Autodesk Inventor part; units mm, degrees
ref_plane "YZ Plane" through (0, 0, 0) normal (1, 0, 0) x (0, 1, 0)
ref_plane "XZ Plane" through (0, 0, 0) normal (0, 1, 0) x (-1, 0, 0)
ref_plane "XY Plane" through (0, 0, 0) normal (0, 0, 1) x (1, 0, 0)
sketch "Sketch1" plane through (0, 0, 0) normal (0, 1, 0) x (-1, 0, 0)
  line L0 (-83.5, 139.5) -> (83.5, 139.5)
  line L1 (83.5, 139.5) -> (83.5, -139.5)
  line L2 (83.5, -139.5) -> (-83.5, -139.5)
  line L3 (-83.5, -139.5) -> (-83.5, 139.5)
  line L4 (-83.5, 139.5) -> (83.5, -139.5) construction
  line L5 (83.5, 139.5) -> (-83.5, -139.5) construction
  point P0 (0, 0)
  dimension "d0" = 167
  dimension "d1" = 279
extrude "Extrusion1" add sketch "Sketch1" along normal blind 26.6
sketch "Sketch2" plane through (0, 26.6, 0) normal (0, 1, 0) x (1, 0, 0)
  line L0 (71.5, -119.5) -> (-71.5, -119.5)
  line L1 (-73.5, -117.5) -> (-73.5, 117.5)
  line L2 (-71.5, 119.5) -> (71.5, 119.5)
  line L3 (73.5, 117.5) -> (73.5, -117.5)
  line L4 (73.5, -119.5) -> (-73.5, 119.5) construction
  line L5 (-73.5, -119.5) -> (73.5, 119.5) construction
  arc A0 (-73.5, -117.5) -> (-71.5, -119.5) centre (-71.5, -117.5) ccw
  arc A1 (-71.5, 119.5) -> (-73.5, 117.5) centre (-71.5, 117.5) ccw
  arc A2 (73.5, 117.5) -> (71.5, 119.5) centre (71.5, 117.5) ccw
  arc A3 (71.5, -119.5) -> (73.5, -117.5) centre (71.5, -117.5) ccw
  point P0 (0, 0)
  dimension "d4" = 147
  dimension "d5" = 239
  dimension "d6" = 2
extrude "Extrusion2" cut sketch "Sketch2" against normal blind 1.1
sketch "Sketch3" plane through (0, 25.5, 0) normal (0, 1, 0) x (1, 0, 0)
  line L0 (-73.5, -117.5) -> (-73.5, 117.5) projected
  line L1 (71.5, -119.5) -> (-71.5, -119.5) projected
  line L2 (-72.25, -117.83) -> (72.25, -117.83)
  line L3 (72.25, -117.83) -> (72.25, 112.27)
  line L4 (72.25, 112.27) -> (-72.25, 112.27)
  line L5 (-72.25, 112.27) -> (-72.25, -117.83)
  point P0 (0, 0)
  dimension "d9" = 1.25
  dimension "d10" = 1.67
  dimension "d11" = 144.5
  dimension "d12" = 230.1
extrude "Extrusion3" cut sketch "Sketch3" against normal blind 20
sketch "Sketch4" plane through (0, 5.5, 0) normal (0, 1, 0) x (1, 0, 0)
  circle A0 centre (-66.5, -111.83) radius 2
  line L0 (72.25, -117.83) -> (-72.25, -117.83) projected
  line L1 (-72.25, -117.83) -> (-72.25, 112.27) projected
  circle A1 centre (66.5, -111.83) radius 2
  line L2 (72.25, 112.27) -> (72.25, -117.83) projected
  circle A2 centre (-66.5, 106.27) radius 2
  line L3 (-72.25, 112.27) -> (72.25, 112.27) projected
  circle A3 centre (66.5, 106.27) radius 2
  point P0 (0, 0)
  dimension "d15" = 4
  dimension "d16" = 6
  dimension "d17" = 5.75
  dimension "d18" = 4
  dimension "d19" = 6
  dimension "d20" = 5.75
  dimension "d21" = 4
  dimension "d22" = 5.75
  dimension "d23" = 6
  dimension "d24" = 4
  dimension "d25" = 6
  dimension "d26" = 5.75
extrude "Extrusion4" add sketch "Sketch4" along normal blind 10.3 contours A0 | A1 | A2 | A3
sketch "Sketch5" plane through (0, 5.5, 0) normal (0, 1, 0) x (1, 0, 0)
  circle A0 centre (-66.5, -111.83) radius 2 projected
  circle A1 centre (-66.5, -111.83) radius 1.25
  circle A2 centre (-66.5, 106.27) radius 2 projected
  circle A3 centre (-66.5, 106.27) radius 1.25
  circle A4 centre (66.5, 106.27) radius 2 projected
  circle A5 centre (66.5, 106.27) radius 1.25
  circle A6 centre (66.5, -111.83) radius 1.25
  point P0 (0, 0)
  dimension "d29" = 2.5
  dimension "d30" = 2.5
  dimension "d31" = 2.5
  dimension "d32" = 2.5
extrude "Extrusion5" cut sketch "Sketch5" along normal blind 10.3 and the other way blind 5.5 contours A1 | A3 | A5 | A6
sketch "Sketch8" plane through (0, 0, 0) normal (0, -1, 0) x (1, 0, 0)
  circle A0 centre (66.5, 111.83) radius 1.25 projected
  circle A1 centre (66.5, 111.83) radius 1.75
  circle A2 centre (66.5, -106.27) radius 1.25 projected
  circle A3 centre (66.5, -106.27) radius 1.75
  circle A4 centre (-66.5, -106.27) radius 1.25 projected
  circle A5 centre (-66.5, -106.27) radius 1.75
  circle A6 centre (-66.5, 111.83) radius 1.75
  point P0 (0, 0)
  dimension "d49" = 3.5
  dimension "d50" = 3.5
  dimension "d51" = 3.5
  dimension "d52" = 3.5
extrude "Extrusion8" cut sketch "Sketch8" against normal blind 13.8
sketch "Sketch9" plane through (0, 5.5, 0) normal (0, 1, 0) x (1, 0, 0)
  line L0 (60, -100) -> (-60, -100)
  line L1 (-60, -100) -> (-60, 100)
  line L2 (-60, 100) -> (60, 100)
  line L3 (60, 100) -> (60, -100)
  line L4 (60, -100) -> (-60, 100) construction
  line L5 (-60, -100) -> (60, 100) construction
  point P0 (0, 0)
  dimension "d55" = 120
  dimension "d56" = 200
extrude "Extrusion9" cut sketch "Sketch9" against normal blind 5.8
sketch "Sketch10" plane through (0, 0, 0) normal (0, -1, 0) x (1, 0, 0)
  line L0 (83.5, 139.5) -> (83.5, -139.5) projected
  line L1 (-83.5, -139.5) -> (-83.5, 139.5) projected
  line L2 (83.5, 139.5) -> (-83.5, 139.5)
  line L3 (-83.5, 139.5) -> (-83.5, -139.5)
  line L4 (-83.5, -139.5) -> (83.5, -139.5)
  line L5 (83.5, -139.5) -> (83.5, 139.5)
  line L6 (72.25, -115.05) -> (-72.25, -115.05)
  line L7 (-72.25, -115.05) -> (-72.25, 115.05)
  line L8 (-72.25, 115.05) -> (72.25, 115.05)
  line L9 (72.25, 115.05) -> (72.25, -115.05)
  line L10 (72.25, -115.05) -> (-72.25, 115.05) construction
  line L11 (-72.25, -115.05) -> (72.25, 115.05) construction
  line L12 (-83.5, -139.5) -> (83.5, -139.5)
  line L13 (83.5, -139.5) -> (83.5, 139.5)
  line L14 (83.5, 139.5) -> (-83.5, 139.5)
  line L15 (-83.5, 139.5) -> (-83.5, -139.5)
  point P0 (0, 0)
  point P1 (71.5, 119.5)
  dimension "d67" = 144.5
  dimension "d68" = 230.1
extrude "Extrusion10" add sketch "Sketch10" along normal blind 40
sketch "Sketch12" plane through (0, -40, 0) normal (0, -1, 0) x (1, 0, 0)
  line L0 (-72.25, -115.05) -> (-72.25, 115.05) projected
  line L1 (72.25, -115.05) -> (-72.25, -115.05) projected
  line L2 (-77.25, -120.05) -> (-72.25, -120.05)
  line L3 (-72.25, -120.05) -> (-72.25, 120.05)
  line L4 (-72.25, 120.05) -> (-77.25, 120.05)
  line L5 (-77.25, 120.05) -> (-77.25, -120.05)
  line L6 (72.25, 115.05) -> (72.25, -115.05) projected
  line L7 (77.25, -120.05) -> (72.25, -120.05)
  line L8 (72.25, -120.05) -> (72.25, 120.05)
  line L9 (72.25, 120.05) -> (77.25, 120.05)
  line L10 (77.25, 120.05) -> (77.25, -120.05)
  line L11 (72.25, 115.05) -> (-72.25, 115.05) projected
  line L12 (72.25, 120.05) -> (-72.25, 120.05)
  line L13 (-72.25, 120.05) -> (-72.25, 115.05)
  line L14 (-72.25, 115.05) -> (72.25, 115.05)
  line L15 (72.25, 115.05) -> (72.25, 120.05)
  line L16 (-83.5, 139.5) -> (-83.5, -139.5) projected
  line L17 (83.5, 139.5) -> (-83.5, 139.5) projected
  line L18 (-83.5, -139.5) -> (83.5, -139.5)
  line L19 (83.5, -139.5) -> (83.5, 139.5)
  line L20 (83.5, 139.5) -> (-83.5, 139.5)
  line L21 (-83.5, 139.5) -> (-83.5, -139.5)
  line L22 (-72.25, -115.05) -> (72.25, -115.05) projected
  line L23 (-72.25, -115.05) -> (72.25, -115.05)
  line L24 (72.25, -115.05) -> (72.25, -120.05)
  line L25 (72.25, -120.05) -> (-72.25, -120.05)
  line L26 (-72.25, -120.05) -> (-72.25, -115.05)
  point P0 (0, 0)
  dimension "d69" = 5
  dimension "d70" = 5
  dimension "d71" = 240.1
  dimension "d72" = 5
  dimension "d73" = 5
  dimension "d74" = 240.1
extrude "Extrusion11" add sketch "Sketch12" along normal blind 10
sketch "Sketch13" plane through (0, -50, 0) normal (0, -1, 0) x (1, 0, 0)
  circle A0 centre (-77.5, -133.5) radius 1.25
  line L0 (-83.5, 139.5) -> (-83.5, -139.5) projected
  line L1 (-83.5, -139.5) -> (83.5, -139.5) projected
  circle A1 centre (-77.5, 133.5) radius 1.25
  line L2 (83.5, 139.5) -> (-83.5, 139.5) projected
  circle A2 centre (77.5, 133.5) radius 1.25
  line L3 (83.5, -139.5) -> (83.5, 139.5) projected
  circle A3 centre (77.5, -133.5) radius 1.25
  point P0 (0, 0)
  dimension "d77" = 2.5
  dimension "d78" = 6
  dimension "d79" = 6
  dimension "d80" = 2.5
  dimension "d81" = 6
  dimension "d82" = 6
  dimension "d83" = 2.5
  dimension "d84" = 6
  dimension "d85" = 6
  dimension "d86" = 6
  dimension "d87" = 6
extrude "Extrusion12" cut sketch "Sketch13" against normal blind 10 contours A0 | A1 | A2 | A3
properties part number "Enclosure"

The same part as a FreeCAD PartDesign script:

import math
import FreeCAD as App
import Part
import Sketcher

V = App.Vector
Q = App.Units.Quantity

doc = App.newDocument("Part")
body = doc.addObject("PartDesign::Body", "Body")

# Sketch on XZ plane
sketch1 = body.newObject("Sketcher::SketchObject", "Sketch")
sketch1.AttachmentSupport = (doc.getObject("XZ_Plane"), [""])
sketch1.MapMode = "FlatFace"
sketch1.addGeometry([
    Part.LineSegment(V(-84, 140, 0), V(84, 140, 0)),
    Part.LineSegment(V(84, 140, 0), V(84, -140, 0)),
    Part.LineSegment(V(84, -140, 0), V(-84, -140, 0)),
    Part.LineSegment(V(-84, -140, 0), V(-84, 140, 0)),
], False)
sketch1.addConstraint([
    Sketcher.Constraint("Coincident", 0, 2, 1, 1),
    Sketcher.Constraint("Coincident", 1, 2, 2, 1),
    Sketcher.Constraint("Coincident", 2, 2, 3, 1),
    Sketcher.Constraint("Coincident", 3, 2, 0, 1),
    Sketcher.Constraint("Horizontal", 0),
    Sketcher.Constraint("Vertical", 1),
    Sketcher.Constraint("Horizontal", 2),
    Sketcher.Constraint("Vertical", 3),
    Sketcher.Constraint("Symmetric", 0, 2, 2, 2, -1, 1),
    Sketcher.Constraint("DistanceX", 0, 1, 0, 2, Q("167 mm")),
    Sketcher.Constraint("DistanceY", 1, 2, 1, 1, Q("279 mm")),
])
pad1 = body.newObject("PartDesign::Pad", "Pad")
pad1.Profile = sketch1
pad1.Length = 26.6
pad1.Reversed = True

# Sketch on XZ plane
sketch2 = body.newObject("Sketcher::SketchObject", "Sketch001")
sketch2.AttachmentSupport = (doc.getObject("XZ_Plane"), [""])
sketch2.MapMode = "FlatFace"
sketch2.AttachmentOffset = App.Placement(V(0, 0, -26.6), App.Rotation())
sketch2.addGeometry([
    Part.LineSegment(V(-71.5, 119.5, 0), V(71.5, 119.5, 0)),  # 0
    Part.ArcOfCircle(Part.Circle(V(71.5, 117.5, 0), V(0, 0, 1), 2), math.radians(0), math.radians(90)),  # 1
    Part.LineSegment(V(73.5, 117.5, 0), V(73.5, -117.5, 0)),  # 2
    Part.ArcOfCircle(Part.Circle(V(71.5, -117.5, 0), V(0, 0, 1), 2), math.radians(-90), math.radians(0)),  # 3
    Part.LineSegment(V(71.5, -119.5, 0), V(-71.5, -119.5, 0)),  # 4
    Part.ArcOfCircle(Part.Circle(V(-71.5, -117.5, 0), V(0, 0, 1), 2), math.radians(180), math.radians(270)),  # 5
    Part.LineSegment(V(-73.5, -117.5, 0), V(-73.5, 117.5, 0)),  # 6
    Part.ArcOfCircle(Part.Circle(V(-71.5, 117.5, 0), V(0, 0, 1), 2), math.radians(90), math.radians(180)),  # 7
], False)
sketch2.addConstraint([
    Sketcher.Constraint("Tangent", 0, 2, 1, 2),
    Sketcher.Constraint("Tangent", 1, 1, 2, 1),
    Sketcher.Constraint("Tangent", 2, 2, 3, 2),
    Sketcher.Constraint("Tangent", 3, 1, 4, 1),
    Sketcher.Constraint("Tangent", 4, 2, 5, 2),
    Sketcher.Constraint("Tangent", 5, 1, 6, 1),
    Sketcher.Constraint("Tangent", 6, 2, 7, 2),
    Sketcher.Constraint("Tangent", 7, 1, 0, 1),
    Sketcher.Constraint("Horizontal", 0),
    Sketcher.Constraint("Vertical", 2),
    Sketcher.Constraint("Horizontal", 4),
    Sketcher.Constraint("Vertical", 6),
    Sketcher.Constraint("Equal", 1, 3),
    Sketcher.Constraint("Equal", 3, 5),
    Sketcher.Constraint("Equal", 5, 7),
    Sketcher.Constraint("Symmetric", 1, 3, 5, 3, -1, 1),
    Sketcher.Constraint("Radius", 1, Q("2 mm")),
    Sketcher.Constraint("DistanceX", 5, 1, 2, 2, Q("147 mm")),
    Sketcher.Constraint("DistanceY", 2, 2, 2, 1, Q("235 mm")),
])
pocket1 = body.newObject("PartDesign::Pocket", "Pocket")
pocket1.Profile = sketch2
pocket1.Length = 1.1
pocket1.Reversed = True

# Sketch on XZ plane
sketch3 = body.newObject("Sketcher::SketchObject", "Sketch002")
sketch3.AttachmentSupport = (doc.getObject("XZ_Plane"), [""])
sketch3.MapMode = "FlatFace"
sketch3.AttachmentOffset = App.Placement(V(0, 0, -25.5), App.Rotation())
sketch3.addGeometry([
    Part.LineSegment(V(-72, -112, 0), V(-72, 118, 0)),
    Part.LineSegment(V(-72, 118, 0), V(72, 118, 0)),
    Part.LineSegment(V(72, 118, 0), V(72, -112, 0)),
    Part.LineSegment(V(72, -112, 0), V(-72, -112, 0)),
], False)
sketch3.addConstraint([
    Sketcher.Constraint("Coincident", 0, 2, 1, 1),
    Sketcher.Constraint("Coincident", 1, 2, 2, 1),
    Sketcher.Constraint("Coincident", 2, 2, 3, 1),
    Sketcher.Constraint("Coincident", 3, 2, 0, 1),
    Sketcher.Constraint("Vertical", 0),
    Sketcher.Constraint("Horizontal", 1),
    Sketcher.Constraint("Vertical", 2),
    Sketcher.Constraint("Horizontal", 3),
    Sketcher.Constraint("DistanceX", 1, 1, 1, 2, Q("144.5 mm")),
    Sketcher.Constraint("DistanceY", 0, 1, 0, 2, Q("230.1 mm")),
    Sketcher.Constraint("DistanceX", 0, 2, -1, 1, Q("72.25 mm")),
    Sketcher.Constraint("DistanceY", -1, 1, 0, 2, Q("117.83 mm")),
])
pocket2 = body.newObject("PartDesign::Pocket", "Pocket001")
pocket2.Profile = sketch3
pocket2.Length = 20
pocket2.Reversed = True

# Sketch on XZ plane
sketch4 = body.newObject("Sketcher::SketchObject", "Sketch003")
sketch4.AttachmentSupport = (doc.getObject("XZ_Plane"), [""])
sketch4.MapMode = "FlatFace"
sketch4.AttachmentOffset = App.Placement(V(0, 0, -5.5), App.Rotation())
sketch4.addGeometry([
    Part.Circle(V(-66.5, 111.8, 0), V(0, 0, 1), 2),
    Part.Circle(V(66.5, 111.8, 0), V(0, 0, 1), 2),
    Part.Circle(V(-66.5, -106.3, 0), V(0, 0, 1), 2),
    Part.Circle(V(66.5, -106.3, 0), V(0, 0, 1), 2),
], False)
sketch4.addConstraint([
    Sketcher.Constraint("Equal", 0, 1),
    Sketcher.Constraint("Equal", 1, 2),
    Sketcher.Constraint("Equal", 2, 3),
    Sketcher.Constraint("Symmetric", 0, 3, 1, 3, -2),
    Sketcher.Constraint("Symmetric", 2, 3, 3, 3, -2),
    Sketcher.Constraint("Vertical", 0, 3, 2, 3),
    Sketcher.Constraint("Diameter", 0, Q("4 mm")),
    Sketcher.Constraint("DistanceX", 0, 3, 1, 3, Q("133 mm")),
    Sketcher.Constraint("DistanceY", 2, 3, 0, 3, Q("218.1 mm")),
    Sketcher.Constraint("DistanceY", -1, 1, 0, 3, Q("111.83 mm")),
])
pad2 = body.newObject("PartDesign::Pad", "Pad001")
pad2.Profile = sketch4
pad2.Length = 10.3
pad2.Reversed = True

# Sketch on XZ plane
sketch5 = body.newObject("Sketcher::SketchObject", "Sketch004")
sketch5.AttachmentSupport = (doc.getObject("XZ_Plane"), [""])
sketch5.MapMode = "FlatFace"
sketch5.AttachmentOffset = App.Placement(V(0, 0, -5.5), App.Rotation())
sketch5.addGeometry([
    Part.Circle(V(-66.5, 111.8, 0), V(0, 0, 1), 1.2),
    Part.Circle(V(-66.5, -106.3, 0), V(0, 0, 1), 1.2),
    Part.Circle(V(66.5, -106.3, 0), V(0, 0, 1), 1.2),
    Part.Circle(V(66.5, 111.8, 0), V(0, 0, 1), 1.2),
], False)
sketch5.addConstraint([
    Sketcher.Constraint("Equal", 0, 1),
    Sketcher.Constraint("Equal", 1, 2),
    Sketcher.Constraint("Equal", 2, 3),
    Sketcher.Constraint("Symmetric", 1, 3, 2, 3, -2),
    Sketcher.Constraint("Symmetric", 0, 3, 3, 3, -2),
    Sketcher.Constraint("Vertical", 0, 3, 1, 3),
    Sketcher.Constraint("Diameter", 0, Q("2.5 mm")),
    Sketcher.Constraint("DistanceX", 1, 3, 2, 3, Q("133 mm")),
    Sketcher.Constraint("DistanceY", 1, 3, 0, 3, Q("218.1 mm")),
    Sketcher.Constraint("DistanceY", -1, 1, 0, 3, Q("111.83 mm")),
])
pocket3 = body.newObject("PartDesign::Pocket", "Pocket002")
pocket3.Profile = sketch5
pocket3.Type = "ThroughAll"
pocket3.Midplane = True

# Sketch on XZ plane
sketch6 = body.newObject("Sketcher::SketchObject", "Sketch005")
sketch6.AttachmentSupport = (doc.getObject("XZ_Plane"), [""])
sketch6.MapMode = "FlatFace"
sketch6.addGeometry([
    Part.Circle(V(66.5, 111.8, 0), V(0, 0, 1), 1.8),  # 0
    Part.Circle(V(66.5, 111.8, 0), V(0, 0, 1), 1.2),  # 1
    Part.Circle(V(66.5, -106.3, 0), V(0, 0, 1), 1.8),  # 2
    Part.Circle(V(66.5, -106.3, 0), V(0, 0, 1), 1.2),  # 3
    Part.Circle(V(-66.5, -106.3, 0), V(0, 0, 1), 1.8),  # 4
    Part.Circle(V(-66.5, -106.3, 0), V(0, 0, 1), 1.2),  # 5
    Part.Circle(V(-66.5, 111.8, 0), V(0, 0, 1), 1.8),  # 6
], False)
sketch6.addConstraint([
    Sketcher.Constraint("Coincident", 1, 3, 0, 3),
    Sketcher.Constraint("Coincident", 3, 3, 2, 3),
    Sketcher.Constraint("Coincident", 5, 3, 4, 3),
    Sketcher.Constraint("Equal", 0, 2),
    Sketcher.Constraint("Equal", 1, 3),
    Sketcher.Constraint("Equal", 2, 4),
    Sketcher.Constraint("Equal", 3, 5),
    Sketcher.Constraint("Equal", 4, 6),
    Sketcher.Constraint("Symmetric", 2, 3, 4, 3, -2),
    Sketcher.Constraint("Symmetric", 0, 3, 6, 3, -2),
    Sketcher.Constraint("Vertical", 1, 3, 2, 3),
    Sketcher.Constraint("Diameter", 0, Q("3.5 mm")),
    Sketcher.Constraint("Diameter", 1, Q("2.5 mm")),
    Sketcher.Constraint("DistanceX", 4, 3, 2, 3, Q("133 mm")),
    Sketcher.Constraint("DistanceY", 2, 3, 0, 3, Q("218.1 mm")),
    Sketcher.Constraint("DistanceY", -1, 1, 0, 3, Q("111.83 mm")),
])
pocket4 = body.newObject("PartDesign::Pocket", "Pocket003")
pocket4.Profile = sketch6
pocket4.Length = 13.8

# Sketch on XZ plane
sketch7 = body.newObject("Sketcher::SketchObject", "Sketch006")
sketch7.AttachmentSupport = (doc.getObject("XZ_Plane"), [""])
sketch7.MapMode = "FlatFace"
sketch7.AttachmentOffset = App.Placement(V(0, 0, -5.5), App.Rotation())
sketch7.addGeometry([
    Part.LineSegment(V(-60, 100, 0), V(60, 100, 0)),
    Part.LineSegment(V(60, 100, 0), V(60, -100, 0)),
    Part.LineSegment(V(60, -100, 0), V(-60, -100, 0)),
    Part.LineSegment(V(-60, -100, 0), V(-60, 100, 0)),
], False)
sketch7.addConstraint([
    Sketcher.Constraint("Coincident", 0, 2, 1, 1),
    Sketcher.Constraint("Coincident", 1, 2, 2, 1),
    Sketcher.Constraint("Coincident", 2, 2, 3, 1),
    Sketcher.Constraint("Coincident", 3, 2, 0, 1),
    Sketcher.Constraint("Horizontal", 0),
    Sketcher.Constraint("Vertical", 1),
    Sketcher.Constraint("Horizontal", 2),
    Sketcher.Constraint("Vertical", 3),
    Sketcher.Constraint("Symmetric", 0, 2, 2, 2, -1, 1),
    Sketcher.Constraint("DistanceX", 0, 1, 0, 2, Q("120 mm")),
    Sketcher.Constraint("DistanceY", 1, 2, 1, 1, Q("200 mm")),
])
pocket5 = body.newObject("PartDesign::Pocket", "Pocket004")
pocket5.Profile = sketch7
pocket5.Length = 5.8
pocket5.Reversed = True

# Sketch on XZ plane
sketch8 = body.newObject("Sketcher::SketchObject", "Sketch007")
sketch8.AttachmentSupport = (doc.getObject("XZ_Plane"), [""])
sketch8.MapMode = "FlatFace"
sketch8.addGeometry([
    Part.LineSegment(V(84, -140, 0), V(84, 140, 0)),  # 0
    Part.LineSegment(V(84, 140, 0), V(-84, 140, 0)),  # 1
    Part.LineSegment(V(-84, 140, 0), V(-84, -140, 0)),  # 2
    Part.LineSegment(V(-84, -140, 0), V(84, -140, 0)),  # 3
    Part.LineSegment(V(72, 115, 0), V(72, -115, 0)),  # 4
    Part.LineSegment(V(72, -115, 0), V(-72, -115, 0)),  # 5
    Part.LineSegment(V(-72, -115, 0), V(-72, 115, 0)),  # 6
    Part.LineSegment(V(-72, 115, 0), V(72, 115, 0)),  # 7
], False)
sketch8.addConstraint([
    Sketcher.Constraint("Coincident", 0, 2, 1, 1),
    Sketcher.Constraint("Coincident", 1, 2, 2, 1),
    Sketcher.Constraint("Coincident", 2, 2, 3, 1),
    Sketcher.Constraint("Coincident", 3, 2, 0, 1),
    Sketcher.Constraint("Coincident", 4, 2, 5, 1),
    Sketcher.Constraint("Coincident", 5, 2, 6, 1),
    Sketcher.Constraint("Coincident", 6, 2, 7, 1),
    Sketcher.Constraint("Coincident", 7, 2, 4, 1),
    Sketcher.Constraint("Vertical", 0),
    Sketcher.Constraint("Horizontal", 1),
    Sketcher.Constraint("Vertical", 2),
    Sketcher.Constraint("Horizontal", 3),
    Sketcher.Constraint("Vertical", 4),
    Sketcher.Constraint("Horizontal", 5),
    Sketcher.Constraint("Vertical", 6),
    Sketcher.Constraint("Horizontal", 7),
    Sketcher.Constraint("Symmetric", 0, 2, 2, 2, -1, 1),
    Sketcher.Constraint("Symmetric", 4, 2, 6, 2, -1, 1),
    Sketcher.Constraint("DistanceX", 5, 2, 5, 1, Q("144.5 mm")),
    Sketcher.Constraint("DistanceY", 4, 2, 4, 1, Q("230.1 mm")),
    Sketcher.Constraint("DistanceX", 1, 2, 1, 1, Q("167 mm")),
    Sketcher.Constraint("DistanceY", 0, 1, 0, 2, Q("279 mm")),
])
pad3 = body.newObject("PartDesign::Pad", "Pad002")
pad3.Profile = sketch8
pad3.Length = 40

# Sketch on XZ plane
sketch9 = body.newObject("Sketcher::SketchObject", "Sketch008")
sketch9.AttachmentSupport = (doc.getObject("XZ_Plane"), [""])
sketch9.MapMode = "FlatFace"
sketch9.AttachmentOffset = App.Placement(V(0, 0, 40), App.Rotation())
sketch9.addGeometry([
    Part.LineSegment(V(84, 140, 0), V(-84, 140, 0)),  # 0
    Part.LineSegment(V(-84, 140, 0), V(-84, -140, 0)),  # 1
    Part.LineSegment(V(-84, -140, 0), V(84, -140, 0)),  # 2
    Part.LineSegment(V(84, -140, 0), V(84, 140, 0)),  # 3
    Part.LineSegment(V(77, -120, 0), V(-77, -120, 0)),  # 4
    Part.LineSegment(V(-77, -120, 0), V(-77, 120, 0)),  # 5
    Part.LineSegment(V(-77, 120, 0), V(77, 120, 0)),  # 6
    Part.LineSegment(V(77, 120, 0), V(77, -120, 0)),  # 7
], False)
sketch9.addConstraint([
    Sketcher.Constraint("Coincident", 0, 2, 1, 1),
    Sketcher.Constraint("Coincident", 1, 2, 2, 1),
    Sketcher.Constraint("Coincident", 2, 2, 3, 1),
    Sketcher.Constraint("Coincident", 3, 2, 0, 1),
    Sketcher.Constraint("Coincident", 4, 2, 5, 1),
    Sketcher.Constraint("Coincident", 5, 2, 6, 1),
    Sketcher.Constraint("Coincident", 6, 2, 7, 1),
    Sketcher.Constraint("Coincident", 7, 2, 4, 1),
    Sketcher.Constraint("Horizontal", 0),
    Sketcher.Constraint("Vertical", 1),
    Sketcher.Constraint("Horizontal", 2),
    Sketcher.Constraint("Vertical", 3),
    Sketcher.Constraint("Horizontal", 4),
    Sketcher.Constraint("Vertical", 5),
    Sketcher.Constraint("Horizontal", 6),
    Sketcher.Constraint("Vertical", 7),
    Sketcher.Constraint("Symmetric", 0, 2, 2, 2, -1, 1),
    Sketcher.Constraint("Symmetric", 4, 2, 6, 2, -1, 1),
    Sketcher.Constraint("DistanceY", 5, 1, 5, 2, Q("240.1 mm")),
    Sketcher.Constraint("DistanceX", 0, 2, 0, 1, Q("167 mm")),
    Sketcher.Constraint("DistanceY", 1, 2, 1, 1, Q("279 mm")),
    Sketcher.Constraint("DistanceX", 4, 2, 4, 1, Q("154.5 mm")),
])
pad4 = body.newObject("PartDesign::Pad", "Pad003")
pad4.Profile = sketch9
pad4.Length = 10

# Sketch on XZ plane
sketch10 = body.newObject("Sketcher::SketchObject", "Sketch009")
sketch10.AttachmentSupport = (doc.getObject("XZ_Plane"), [""])
sketch10.MapMode = "FlatFace"
sketch10.AttachmentOffset = App.Placement(V(0, 0, 50), App.Rotation())
sketch10.addGeometry([
    Part.Circle(V(-77.5, -133.5, 0), V(0, 0, 1), 1.2),
    Part.Circle(V(-77.5, 133.5, 0), V(0, 0, 1), 1.2),
    Part.Circle(V(77.5, 133.5, 0), V(0, 0, 1), 1.2),
    Part.Circle(V(77.5, -133.5, 0), V(0, 0, 1), 1.2),
], False)
sketch10.addConstraint([
    Sketcher.Constraint("Equal", 0, 1),
    Sketcher.Constraint("Equal", 1, 2),
    Sketcher.Constraint("Equal", 2, 3),
    Sketcher.Constraint("Symmetric", 0, 3, 2, 3, -1, 1),
    Sketcher.Constraint("Symmetric", 1, 3, 3, 3, -1, 1),
    Sketcher.Constraint("Symmetric", 1, 3, 2, 3, -2),
    Sketcher.Constraint("Diameter", 0, Q("2.5 mm")),
    Sketcher.Constraint("DistanceY", 0, 3, 1, 3, Q("267 mm")),
    Sketcher.Constraint("DistanceX", 1, 3, 2, 3, Q("155 mm")),
])
pocket6 = body.newObject("PartDesign::Pocket", "Pocket005")
pocket6.Profile = sketch10
pocket6.Length = 10

doc.recompute()
